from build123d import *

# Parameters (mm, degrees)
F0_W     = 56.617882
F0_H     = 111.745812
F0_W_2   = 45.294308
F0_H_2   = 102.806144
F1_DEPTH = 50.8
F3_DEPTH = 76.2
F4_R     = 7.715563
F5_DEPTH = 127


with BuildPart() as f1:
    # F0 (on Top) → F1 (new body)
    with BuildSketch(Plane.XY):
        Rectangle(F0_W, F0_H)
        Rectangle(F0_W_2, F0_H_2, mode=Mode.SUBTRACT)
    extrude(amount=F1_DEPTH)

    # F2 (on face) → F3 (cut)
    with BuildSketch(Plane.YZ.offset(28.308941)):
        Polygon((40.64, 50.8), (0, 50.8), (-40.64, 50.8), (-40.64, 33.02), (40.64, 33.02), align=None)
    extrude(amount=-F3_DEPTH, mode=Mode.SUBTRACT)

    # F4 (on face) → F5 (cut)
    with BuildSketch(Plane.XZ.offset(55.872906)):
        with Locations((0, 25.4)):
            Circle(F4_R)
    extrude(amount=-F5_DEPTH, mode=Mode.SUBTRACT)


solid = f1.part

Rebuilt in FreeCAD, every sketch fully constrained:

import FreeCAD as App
import Part
import Sketcher
Q = App.Units.Quantity


def add_polygon(sketch, points):
    """Adds a closed chain of lines whose ends are joined by coincident constraints."""
    first, n = sketch.GeometryCount, len(points)
    for a, b in zip(points, points[1:] + points[:1]):
        sketch.addGeometry(Part.LineSegment(App.Vector(*a, 0), App.Vector(*b, 0)), False)
    for i in range(n):
        sketch.addConstraint(Sketcher.Constraint("Coincident", first + i, 2, first + (i + 1) % n, 1))

doc = App.newDocument("Part")
body = doc.addObject("PartDesign::Body", "Body")

# Sketch on XY plane
sketch1 = body.newObject("Sketcher::SketchObject", "Sketch")
sketch1.AttachmentSupport = (doc.getObject("XY_Plane"), [""])
sketch1.MapMode = "FlatFace"
add_polygon(sketch1, [(-28, 56), (-28, -56), (28, -56), (28, 56)])  # lines 0-3
add_polygon(sketch1, [(23, -51), (-23, -51), (-23, 51), (23, 51)])  # lines 4-7
sketch1.addConstraint(Sketcher.Constraint("Vertical", 0))
sketch1.addConstraint(Sketcher.Constraint("Horizontal", 1))
sketch1.addConstraint(Sketcher.Constraint("Vertical", 2))
sketch1.addConstraint(Sketcher.Constraint("Horizontal", 3))
sketch1.addConstraint(Sketcher.Constraint("Horizontal", 4))
sketch1.addConstraint(Sketcher.Constraint("Vertical", 5))
sketch1.addConstraint(Sketcher.Constraint("Horizontal", 6))
sketch1.addConstraint(Sketcher.Constraint("Vertical", 7))
sketch1.addConstraint(Sketcher.Constraint("Symmetric", 0, 2, 2, 2, -1, 1))
sketch1.addConstraint(Sketcher.Constraint("Symmetric", 4, 2, 6, 2, -1, 1))
sketch1.addConstraint(Sketcher.Constraint("DistanceY", 0, 2, 0, 1, Q("111.745812 mm")))
sketch1.addConstraint(Sketcher.Constraint("DistanceX", 1, 1, 1, 2, Q("56.617882 mm")))
sketch1.addConstraint(Sketcher.Constraint("DistanceX", 4, 2, 4, 1, Q("45.294308 mm")))
sketch1.addConstraint(Sketcher.Constraint("DistanceY", 5, 1, 5, 2, Q("102.806144 mm")))
pad1 = body.newObject("PartDesign::Pad", "Pad")
pad1.Profile = sketch1
pad1.Length = Q("2 in")

# Sketch on YZ plane
sketch2 = body.newObject("Sketcher::SketchObject", "Sketch001")
sketch2.AttachmentSupport = (doc.getObject("YZ_Plane"), [""])
sketch2.MapMode = "FlatFace"
sketch2.AttachmentOffset = App.Placement(App.Vector(0, 0, 28.308941), App.Rotation())
add_polygon(sketch2, [(41, 51), (-41, 51), (-41, 33), (41, 33)])  # lines 0-3
sketch2.addConstraint(Sketcher.Constraint("Horizontal", 0))
sketch2.addConstraint(Sketcher.Constraint("Vertical", 1))
sketch2.addConstraint(Sketcher.Constraint("Horizontal", 2))
sketch2.addConstraint(Sketcher.Constraint("Vertical", 3))
sketch2.addConstraint(Sketcher.Constraint("DistanceX", 0, 2, 0, 1, Q("3.2 in")))
sketch2.addConstraint(Sketcher.Constraint("DistanceY", 1, 2, 1, 1, Q("0.7 in")))
sketch2.addConstraint(Sketcher.Constraint("DistanceY", -1, 1, 0, 2, Q("2 in")))
sketch2.addConstraint(Sketcher.Constraint("DistanceX", 0, 2, -1, 1, Q("1.6 in")))
pocket1 = body.newObject("PartDesign::Pocket", "Pocket")
pocket1.Profile = sketch2
pocket1.Length = Q("3 in")

# Sketch on XZ plane
sketch3 = body.newObject("Sketcher::SketchObject", "Sketch002")
sketch3.AttachmentSupport = (doc.getObject("XZ_Plane"), [""])
sketch3.MapMode = "FlatFace"
sketch3.AttachmentOffset = App.Placement(App.Vector(0, 0, 55.872906), App.Rotation())
sketch3.addGeometry(Part.Circle(App.Vector(0, 25, 0), App.Vector(0, 0, 1), 8), False)
sketch3.addConstraint(Sketcher.Constraint("PointOnObject", 0, 3, -2))
sketch3.addConstraint(Sketcher.Constraint("DistanceY", -1, 1, 0, 3, Q("1 in")))
sketch3.addConstraint(Sketcher.Constraint("Diameter", 0, Q("15.431126 mm")))
pocket2 = body.newObject("PartDesign::Pocket", "Pocket001")
pocket2.Profile = sketch3
pocket2.Length = Q("5 in")

doc.recompute()
